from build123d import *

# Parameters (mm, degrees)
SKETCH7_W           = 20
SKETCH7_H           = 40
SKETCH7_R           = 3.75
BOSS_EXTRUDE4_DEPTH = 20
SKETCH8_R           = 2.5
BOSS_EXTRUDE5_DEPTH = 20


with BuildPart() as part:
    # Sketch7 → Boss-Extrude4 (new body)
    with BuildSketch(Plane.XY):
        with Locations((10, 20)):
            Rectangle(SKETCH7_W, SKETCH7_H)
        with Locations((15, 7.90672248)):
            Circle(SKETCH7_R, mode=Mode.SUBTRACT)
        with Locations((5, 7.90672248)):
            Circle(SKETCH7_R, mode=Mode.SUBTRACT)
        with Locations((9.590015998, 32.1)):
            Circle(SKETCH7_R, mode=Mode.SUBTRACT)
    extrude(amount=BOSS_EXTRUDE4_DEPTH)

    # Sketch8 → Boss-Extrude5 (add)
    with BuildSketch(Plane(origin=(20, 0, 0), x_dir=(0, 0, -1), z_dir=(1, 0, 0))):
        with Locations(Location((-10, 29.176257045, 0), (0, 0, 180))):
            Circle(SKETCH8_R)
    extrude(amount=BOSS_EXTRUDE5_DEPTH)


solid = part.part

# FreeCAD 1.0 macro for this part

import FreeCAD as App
import Part
import Sketcher

V = App.Vector


def add_polygon(sketch, points):
    """Adds a closed chain of lines whose ends are joined by coincident constraints."""
    first, n = sketch.GeometryCount, len(points)
    for a, b in zip(points, points[1:] + points[:1]):
        sketch.addGeometry(Part.LineSegment(App.Vector(*a, 0), App.Vector(*b, 0)), False)
    for i in range(n):
        sketch.addConstraint(Sketcher.Constraint("Coincident", first + i, 2, first + (i + 1) % n, 1))

doc = App.newDocument("Part")
body = doc.addObject("PartDesign::Body", "Body")

# Sketch on XY plane
sketch1 = body.newObject("Sketcher::SketchObject", "Sketch")
sketch1.AttachmentSupport = (doc.getObject("XY_Plane"), [""])
sketch1.MapMode = "FlatFace"
add_polygon(sketch1, [(0, 40), (0, 0), (20, 0), (20, 40)])  # lines 0-3
sketch1.addGeometry(Part.Circle(V(5, 7.906722, 0), V(0, 0, 1), 3.75), False)  # 4
sketch1.addGeometry(Part.Circle(V(15, 7.906722, 0), V(0, 0, 1), 3.75), False)  # 5
sketch1.addGeometry(Part.Circle(V(9.590016, 32.1, 0), V(0, 0, 1), 3.75), False)  # 6
sketch1.addConstraint([
    Sketcher.Constraint("Vertical", 0),
    Sketcher.Constraint("Horizontal", 1),
    Sketcher.Constraint("Vertical", 2),
    Sketcher.Constraint("Horizontal", 3),
    Sketcher.Constraint("Coincident", 0, 2, -1, 1),
    Sketcher.Constraint("Equal", 4, 5),
    Sketcher.Constraint("Equal", 5, 6),
    Sketcher.Constraint("Horizontal", 4, 3, 5, 3),
    Sketcher.Constraint("Diameter", 4, 7.5),
    Sketcher.Constraint("DistanceX", 1, 1, 1, 2, 20.0),
    Sketcher.Constraint("DistanceY", 0, 2, 0, 1, 40.0),
    Sketcher.Constraint("DistanceX", -1, 1, 4, 3, 5.0),
    Sketcher.Constraint("DistanceX", -1, 1, 5, 3, 15.0),
    Sketcher.Constraint("DistanceY", -1, 1, 6, 3, 32.1),
    Sketcher.Constraint("DistanceY", -1, 1, 4, 3, 7.906722),
    Sketcher.Constraint("DistanceX", -1, 1, 6, 3, 9.590016),
])
pad1 = body.newObject("PartDesign::Pad", "Pad")
pad1.Profile = sketch1
pad1.Length = 20

# Sketch on YZ plane
sketch2 = body.newObject("Sketcher::SketchObject", "Sketch001")
sketch2.AttachmentSupport = (doc.getObject("YZ_Plane"), [""])
sketch2.MapMode = "FlatFace"
sketch2.AttachmentOffset = App.Placement(V(0, 0, 20), App.Rotation())
sketch2.addGeometry(Part.Circle(V(29.176257, 10, 0), V(0, 0, 1), 2.5), False)
sketch2.addConstraint([
    Sketcher.Constraint("Diameter", 0, 5.0),
    Sketcher.Constraint("DistanceY", -1, 1, 0, 3, 10.0),
    Sketcher.Constraint("DistanceX", -1, 1, 0, 3, 29.176257),
])
pad2 = body.newObject("PartDesign::Pad", "Pad001")
pad2.Profile = sketch2
pad2.Length = 20

doc.recompute()
